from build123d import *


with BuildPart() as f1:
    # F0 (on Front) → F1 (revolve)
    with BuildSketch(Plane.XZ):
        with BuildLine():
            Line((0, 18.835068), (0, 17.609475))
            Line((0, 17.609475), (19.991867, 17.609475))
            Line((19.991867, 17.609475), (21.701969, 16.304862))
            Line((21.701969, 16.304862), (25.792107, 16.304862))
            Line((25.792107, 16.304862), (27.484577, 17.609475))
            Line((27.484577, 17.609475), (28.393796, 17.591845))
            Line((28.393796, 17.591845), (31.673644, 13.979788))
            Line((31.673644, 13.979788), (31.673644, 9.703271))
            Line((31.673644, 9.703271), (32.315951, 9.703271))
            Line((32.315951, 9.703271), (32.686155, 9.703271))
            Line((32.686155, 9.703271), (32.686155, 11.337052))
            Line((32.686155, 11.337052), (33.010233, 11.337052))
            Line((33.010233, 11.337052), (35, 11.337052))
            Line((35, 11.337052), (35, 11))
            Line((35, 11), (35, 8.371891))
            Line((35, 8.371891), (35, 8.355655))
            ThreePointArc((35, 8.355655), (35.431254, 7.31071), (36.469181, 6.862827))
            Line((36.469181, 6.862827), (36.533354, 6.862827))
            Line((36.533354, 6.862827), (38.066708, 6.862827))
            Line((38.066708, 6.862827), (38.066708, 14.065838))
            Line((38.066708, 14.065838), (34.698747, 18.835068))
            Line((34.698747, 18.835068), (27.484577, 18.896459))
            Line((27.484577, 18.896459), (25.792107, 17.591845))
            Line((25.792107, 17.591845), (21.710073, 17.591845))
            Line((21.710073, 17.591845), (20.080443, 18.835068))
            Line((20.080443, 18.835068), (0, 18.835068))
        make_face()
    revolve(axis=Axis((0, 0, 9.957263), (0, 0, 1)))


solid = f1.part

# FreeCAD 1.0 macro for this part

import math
import FreeCAD as App
import Part
import Sketcher
from FreeCAD import Vector
Q = App.Units.Quantity

doc = App.newDocument("Part")
body = doc.addObject("PartDesign::Body", "Body")

# Sketch on XZ plane
sketch1 = body.newObject("Sketcher::SketchObject", "Sketch")
sketch1.AttachmentSupport = (doc.getObject("XZ_Plane"), [""])
sketch1.MapMode = "FlatFace"
sketch1.addGeometry(Part.LineSegment(Vector(0, 18.8, 0), Vector(0, 17.6, 0)), False)
sketch1.addGeometry(Part.LineSegment(Vector(0, 17.6, 0), Vector(20, 17.6, 0)), False)
sketch1.addGeometry(Part.LineSegment(Vector(20, 17.6, 0), Vector(21.7, 16.3, 0)), False)
sketch1.addGeometry(Part.LineSegment(Vector(21.7, 16.3, 0), Vector(25.8, 16.3, 0)), False)
sketch1.addGeometry(Part.LineSegment(Vector(25.8, 16.3, 0), Vector(27.5, 17.6, 0)), False)
sketch1.addGeometry(Part.LineSegment(Vector(27.5, 17.6, 0), Vector(28.4, 17.6, 0)), False)
sketch1.addGeometry(Part.LineSegment(Vector(28.4, 17.6, 0), Vector(31.7, 14, 0)), False)
sketch1.addGeometry(Part.LineSegment(Vector(31.7, 14, 0), Vector(31.7, 9.7, 0)), False)
sketch1.addGeometry(Part.LineSegment(Vector(31.7, 9.7, 0), Vector(32.7, 9.7, 0)), False)
sketch1.addGeometry(Part.LineSegment(Vector(32.7, 9.7, 0), Vector(32.7, 11.3, 0)), False)
sketch1.addGeometry(Part.LineSegment(Vector(32.7, 11.3, 0), Vector(35, 11.3, 0)), False)
sketch1.addGeometry(Part.LineSegment(Vector(35, 11.3, 0), Vector(35, 8.4, 0)), False)
sketch1.addGeometry(Part.ArcOfCircle(Part.Circle(Vector(36.5, 8.4, 0), Vector(0, 0, 1), 1.5), math.radians(-180), math.radians(-91)), False)
sketch1.addGeometry(Part.LineSegment(Vector(36.5, 6.9, 0), Vector(38.1, 6.9, 0)), False)
sketch1.addGeometry(Part.LineSegment(Vector(38.1, 6.9, 0), Vector(38.1, 14.1, 0)), False)
sketch1.addGeometry(Part.LineSegment(Vector(38.1, 14.1, 0), Vector(34.7, 18.8, 0)), False)
sketch1.addGeometry(Part.LineSegment(Vector(34.7, 18.8, 0), Vector(27.5, 18.9, 0)), False)
sketch1.addGeometry(Part.LineSegment(Vector(27.5, 18.9, 0), Vector(25.8, 17.6, 0)), False)
sketch1.addGeometry(Part.LineSegment(Vector(25.8, 17.6, 0), Vector(21.7, 17.6, 0)), False)
sketch1.addGeometry(Part.LineSegment(Vector(21.7, 17.6, 0), Vector(20.1, 18.8, 0)), False)
sketch1.addGeometry(Part.LineSegment(Vector(20.1, 18.8, 0), Vector(0, 18.8, 0)), False)
sketch1.addConstraint(Sketcher.Constraint("Coincident", 0, 2, 1, 1))
sketch1.addConstraint(Sketcher.Constraint("Coincident", 1, 2, 2, 1))
sketch1.addConstraint(Sketcher.Constraint("Coincident", 2, 2, 3, 1))
sketch1.addConstraint(Sketcher.Constraint("Coincident", 3, 2, 4, 1))
sketch1.addConstraint(Sketcher.Constraint("Coincident", 4, 2, 5, 1))
sketch1.addConstraint(Sketcher.Constraint("Coincident", 5, 2, 6, 1))
sketch1.addConstraint(Sketcher.Constraint("Coincident", 6, 2, 7, 1))
sketch1.addConstraint(Sketcher.Constraint("Coincident", 7, 2, 8, 1))
sketch1.addConstraint(Sketcher.Constraint("Coincident", 8, 2, 9, 1))
sketch1.addConstraint(Sketcher.Constraint("Coincident", 9, 2, 10, 1))
sketch1.addConstraint(Sketcher.Constraint("Coincident", 10, 2, 11, 1))
sketch1.addConstraint(Sketcher.Constraint("Coincident", 11, 2, 12, 1))
sketch1.addConstraint(Sketcher.Constraint("Coincident", 12, 2, 13, 1))
sketch1.addConstraint(Sketcher.Constraint("Coincident", 13, 2, 14, 1))
sketch1.addConstraint(Sketcher.Constraint("Coincident", 14, 2, 15, 1))
sketch1.addConstraint(Sketcher.Constraint("Coincident", 15, 2, 16, 1))
sketch1.addConstraint(Sketcher.Constraint("Coincident", 16, 2, 17, 1))
sketch1.addConstraint(Sketcher.Constraint("Coincident", 17, 2, 18, 1))
sketch1.addConstraint(Sketcher.Constraint("Coincident", 18, 2, 19, 1))
sketch1.addConstraint(Sketcher.Constraint("Coincident", 19, 2, 20, 1))
sketch1.addConstraint(Sketcher.Constraint("Coincident", 20, 2, 0, 1))
sketch1.addConstraint(Sketcher.Constraint("Vertical", 0))
sketch1.addConstraint(Sketcher.Constraint("Horizontal", 1))
sketch1.addConstraint(Sketcher.Constraint("Horizontal", 3))
sketch1.addConstraint(Sketcher.Constraint("Vertical", 7))
sketch1.addConstraint(Sketcher.Constraint("Horizontal", 8))
sketch1.addConstraint(Sketcher.Constraint("Vertical", 9))
sketch1.addConstraint(Sketcher.Constraint("Horizontal", 10))
sketch1.addConstraint(Sketcher.Constraint("Vertical", 11))
sketch1.addConstraint(Sketcher.Constraint("Horizontal", 13))
sketch1.addConstraint(Sketcher.Constraint("Vertical", 14))
sketch1.addConstraint(Sketcher.Constraint("Horizontal", 18))
sketch1.addConstraint(Sketcher.Constraint("Horizontal", 20))
sketch1.addConstraint(Sketcher.Constraint("PointOnObject", 0, 2, -2))
sketch1.addConstraint(Sketcher.Constraint("Parallel", 4, 17))
sketch1.addConstraint(Sketcher.Constraint("Parallel", 2, 19))
sketch1.addConstraint(Sketcher.Constraint("Horizontal", 1, 2, 4, 2))
sketch1.addConstraint(Sketcher.Constraint("Horizontal", 5, 2, 17, 2))
sketch1.addConstraint(Sketcher.Constraint("Horizontal", 15, 2, 19, 2))
sketch1.addConstraint(Sketcher.Constraint("Vertical", 4, 2, 16, 2))
sketch1.addConstraint(Sketcher.Constraint("Vertical", 3, 2, 17, 2))
sketch1.addConstraint(Sketcher.Constraint("DistanceX", -1, 1, 10, 2, Q("35 mm")))
sketch1.addConstraint(Sketcher.Constraint("Radius", 12, Q("1.501288 mm")))
sketch1.addConstraint(Sketcher.Constraint("DistanceX", 3, 1, 3, 2, Q("4.090138 mm")))
sketch1.addConstraint(Sketcher.Constraint("DistanceX", 8, 1, 8, 2, Q("1.012511 mm")))
sketch1.addConstraint(Sketcher.Constraint("DistanceY", 9, 1, 9, 2, Q("1.633781 mm")))
sketch1.addConstraint(Sketcher.Constraint("DistanceY", 14, 1, 14, 2, Q("7.203011 mm")))
sketch1.addConstraint(Sketcher.Constraint("DistanceX", 1, 2, 12, 3, Q("16.509399 mm")))
sketch1.addConstraint(Sketcher.Constraint("DistanceX", 1, 2, 2, 2, Q("1.710102 mm")))
sketch1.addConstraint(Sketcher.Constraint("DistanceY", 12, 3, 7, 2, Q("1.339499 mm")))
sketch1.addConstraint(Sketcher.Constraint("Distance", 2, Q("2.150922 mm")))
sketch1.addConstraint(Sketcher.Constraint("Distance", 4, Q("2.13693 mm")))
sketch1.addConstraint(Sketcher.Constraint("Distance", 5, Q("0.90939 mm")))
sketch1.addConstraint(Sketcher.Constraint("Distance", 6, Q("4.878971 mm")))
sketch1.addConstraint(Sketcher.Constraint("Distance", 16, Q("7.214431 mm")))
sketch1.addConstraint(Sketcher.Constraint("DistanceX", 1, 1, 1, 2, Q("19.991867 mm")))
sketch1.addConstraint(Sketcher.Constraint("DistanceX", 10, 1, 10, 2, Q("2.313845 mm")))
sketch1.addConstraint(Sketcher.Constraint("DistanceX", 13, 1, 13, 2, Q("1.597527 mm")))
sketch1.addConstraint(Sketcher.Constraint("DistanceX", 18, 2, 18, 1, Q("4.082034 mm")))
sketch1.addConstraint(Sketcher.Constraint("DistanceX", 20, 2, 20, 1, Q("20.080443 mm")))
sketch1.addConstraint(Sketcher.Constraint("DistanceY", 0, 2, 0, 1, Q("1.225593 mm")))
sketch1.addConstraint(Sketcher.Constraint("DistanceY", 7, 2, 7, 1, Q("4.276517 mm")))
sketch1.addConstraint(Sketcher.Constraint("DistanceY", -1, 1, 2, 2, Q("16.304862 mm")))
sketch1.addConstraint(Sketcher.Constraint("DistanceX", -1, 1, 12, 2, Q("36.469181 mm")))
revolution = body.newObject("PartDesign::Revolution", "Revolution")
revolution.Profile = sketch1
revolution.ReferenceAxis = (sketch1, ["V_Axis"])
revolution.Angle = 360

doc.recompute()
